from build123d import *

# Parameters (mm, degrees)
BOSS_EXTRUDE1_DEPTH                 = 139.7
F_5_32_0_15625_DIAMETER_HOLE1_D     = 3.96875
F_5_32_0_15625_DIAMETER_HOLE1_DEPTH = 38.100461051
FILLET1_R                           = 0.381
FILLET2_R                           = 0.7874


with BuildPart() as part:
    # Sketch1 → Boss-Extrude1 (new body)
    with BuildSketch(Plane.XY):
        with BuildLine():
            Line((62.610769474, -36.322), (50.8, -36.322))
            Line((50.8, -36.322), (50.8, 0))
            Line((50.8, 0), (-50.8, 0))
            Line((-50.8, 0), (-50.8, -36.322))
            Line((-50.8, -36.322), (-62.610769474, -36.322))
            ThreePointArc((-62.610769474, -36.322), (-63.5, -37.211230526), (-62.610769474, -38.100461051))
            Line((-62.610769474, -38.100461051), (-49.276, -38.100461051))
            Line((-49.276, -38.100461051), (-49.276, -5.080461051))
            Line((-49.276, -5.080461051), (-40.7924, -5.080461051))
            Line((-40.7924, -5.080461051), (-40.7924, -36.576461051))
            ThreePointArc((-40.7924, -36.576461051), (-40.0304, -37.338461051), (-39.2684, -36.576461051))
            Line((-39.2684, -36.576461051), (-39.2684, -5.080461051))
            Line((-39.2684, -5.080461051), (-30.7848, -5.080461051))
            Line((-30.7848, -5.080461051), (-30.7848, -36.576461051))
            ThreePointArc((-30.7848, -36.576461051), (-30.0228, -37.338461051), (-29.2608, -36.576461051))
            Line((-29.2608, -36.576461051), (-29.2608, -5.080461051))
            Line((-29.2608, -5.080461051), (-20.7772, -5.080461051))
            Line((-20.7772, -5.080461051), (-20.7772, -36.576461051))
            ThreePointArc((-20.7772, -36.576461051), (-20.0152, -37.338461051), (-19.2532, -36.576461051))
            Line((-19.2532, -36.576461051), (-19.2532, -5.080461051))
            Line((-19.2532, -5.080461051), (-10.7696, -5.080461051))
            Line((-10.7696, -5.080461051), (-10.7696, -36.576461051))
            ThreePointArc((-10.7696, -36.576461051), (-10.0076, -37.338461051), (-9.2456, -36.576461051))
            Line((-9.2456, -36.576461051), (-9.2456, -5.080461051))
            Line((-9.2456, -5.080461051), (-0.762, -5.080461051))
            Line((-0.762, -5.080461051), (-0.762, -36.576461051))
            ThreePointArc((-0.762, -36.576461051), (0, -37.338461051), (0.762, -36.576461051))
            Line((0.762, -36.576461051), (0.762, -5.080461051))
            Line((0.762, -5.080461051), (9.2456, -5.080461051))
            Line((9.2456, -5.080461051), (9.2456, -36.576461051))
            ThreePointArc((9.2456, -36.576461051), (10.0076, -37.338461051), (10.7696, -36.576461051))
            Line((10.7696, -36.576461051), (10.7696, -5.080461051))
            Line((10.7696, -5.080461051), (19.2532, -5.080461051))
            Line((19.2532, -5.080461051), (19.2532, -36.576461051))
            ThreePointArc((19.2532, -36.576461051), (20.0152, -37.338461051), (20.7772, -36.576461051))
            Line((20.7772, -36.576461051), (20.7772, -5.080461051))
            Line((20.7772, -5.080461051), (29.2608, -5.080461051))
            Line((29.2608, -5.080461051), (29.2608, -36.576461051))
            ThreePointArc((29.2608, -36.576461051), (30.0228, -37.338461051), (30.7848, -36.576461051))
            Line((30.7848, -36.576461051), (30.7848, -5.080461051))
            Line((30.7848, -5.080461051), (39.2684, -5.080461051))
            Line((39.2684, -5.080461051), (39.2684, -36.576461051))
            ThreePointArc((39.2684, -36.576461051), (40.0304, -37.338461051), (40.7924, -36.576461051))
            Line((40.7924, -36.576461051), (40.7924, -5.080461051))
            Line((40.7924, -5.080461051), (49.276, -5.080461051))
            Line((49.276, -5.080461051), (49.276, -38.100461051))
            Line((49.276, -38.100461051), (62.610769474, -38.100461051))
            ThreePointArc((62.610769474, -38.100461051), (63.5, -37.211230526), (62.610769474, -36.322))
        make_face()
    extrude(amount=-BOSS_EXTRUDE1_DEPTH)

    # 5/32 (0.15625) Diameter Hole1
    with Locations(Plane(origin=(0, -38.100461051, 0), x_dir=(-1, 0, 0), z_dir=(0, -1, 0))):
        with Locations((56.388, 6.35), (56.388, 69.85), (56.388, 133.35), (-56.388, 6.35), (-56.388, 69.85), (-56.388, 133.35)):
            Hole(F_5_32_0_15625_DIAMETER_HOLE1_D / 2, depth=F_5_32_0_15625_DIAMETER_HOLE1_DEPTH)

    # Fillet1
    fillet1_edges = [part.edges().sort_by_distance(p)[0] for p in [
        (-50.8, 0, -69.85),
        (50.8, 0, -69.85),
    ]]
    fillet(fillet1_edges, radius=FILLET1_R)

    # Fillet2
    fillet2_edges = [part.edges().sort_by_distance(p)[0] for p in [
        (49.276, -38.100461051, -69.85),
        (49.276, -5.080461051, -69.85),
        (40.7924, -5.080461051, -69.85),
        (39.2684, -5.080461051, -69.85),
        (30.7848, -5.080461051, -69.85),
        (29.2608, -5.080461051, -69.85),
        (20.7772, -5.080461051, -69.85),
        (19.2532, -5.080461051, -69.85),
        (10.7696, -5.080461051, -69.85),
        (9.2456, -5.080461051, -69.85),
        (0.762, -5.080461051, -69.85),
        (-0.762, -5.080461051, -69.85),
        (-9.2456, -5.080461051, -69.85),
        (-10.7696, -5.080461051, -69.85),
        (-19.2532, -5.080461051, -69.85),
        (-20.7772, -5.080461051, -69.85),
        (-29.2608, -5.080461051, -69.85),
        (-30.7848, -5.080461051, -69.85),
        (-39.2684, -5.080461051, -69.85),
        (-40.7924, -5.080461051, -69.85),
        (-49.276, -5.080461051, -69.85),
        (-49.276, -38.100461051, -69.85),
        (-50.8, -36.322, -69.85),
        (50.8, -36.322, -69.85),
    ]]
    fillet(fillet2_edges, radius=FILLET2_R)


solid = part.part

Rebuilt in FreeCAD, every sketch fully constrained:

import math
import FreeCAD as App
import Part
import Sketcher
from FreeCAD import Vector
Q = App.Units.Quantity


def edges_at(feature, points):
    """Names of the edges that pass closest to the given points."""
    edges = feature.Shape.Edges
    near = lambda p: min(range(len(edges)), key=lambda i: edges[i].distToShape(Part.Vertex(*p))[0])
    return sorted({f"Edge{near(p) + 1}" for p in points})

doc = App.newDocument("Part")
params = doc.addObject("Spreadsheet::Sheet", "Params")
for row, (alias, value) in enumerate([
    ("sketch1_width", "4 in"),
    ("sketch1_radius", "0.03 in"),
    ("sketch1_height", "1.3 in"),
    ("sketch1_height2", "1.43 in"),
    ("sketch1_height3", "1.24 in"),
    ("pad1_length", "5.5 in"),
    ("sketch2_diameter", "0.15625 in"),
    ("hole_diameter", "0.15625 in"),
    ("hole_depth", "38.100461 mm"),
    ("fillet_radius", "0.015 in"),
    ("fillet2_radius", "0.031 in"),
], start=1):
    params.set(f"A{row}", alias)
    params.set(f"B{row}", "=" + value)
    params.setAlias(f"B{row}", alias)

body = doc.addObject("PartDesign::Body", "Body")

sketch1 = doc.addObject("Sketcher::SketchObject", "Sketch")
body.addObject(sketch1)
sketch1.AttachmentSupport = (doc.XY_Plane, [""])
sketch1.MapMode = "FlatFace"
sketch1.addGeometry([
    Part.LineSegment(Vector(62.6, -36.3, 0), Vector(50.8, -36.3, 0)),
    Part.LineSegment(Vector(50.8, -36.3, 0), Vector(50.8, 0, 0)),
    Part.LineSegment(Vector(50.8, 0, 0), Vector(-50.8, 0, 0)),
    Part.LineSegment(Vector(-50.8, 0, 0), Vector(-50.8, -36.3, 0)),
    Part.LineSegment(Vector(-50.8, -36.3, 0), Vector(-62.6, -36.3, 0)),
    Part.ArcOfCircle(Part.Circle(Vector(-62.6, -37.2, 0), Vector(0, 0, 1), 0.9), math.radians(90), math.radians(270)),
    Part.LineSegment(Vector(-62.6, -38.1, 0), Vector(-49.3, -38.1, 0)),
    Part.LineSegment(Vector(-49.3, -38.1, 0), Vector(-49.3, -5.1, 0)),
    Part.LineSegment(Vector(-49.3, -5.1, 0), Vector(-40.8, -5.1, 0)),
    Part.LineSegment(Vector(-40.8, -5.1, 0), Vector(-40.8, -36.6, 0)),
    Part.ArcOfCircle(Part.Circle(Vector(-40, -36.6, 0), Vector(0, 0, 1), 0.8), math.radians(180), math.radians(360)),
    Part.LineSegment(Vector(-39.3, -36.6, 0), Vector(-39.3, -5.1, 0)),
    Part.LineSegment(Vector(-39.3, -5.1, 0), Vector(-30.8, -5.1, 0)),
    Part.LineSegment(Vector(-30.8, -5.1, 0), Vector(-30.8, -36.6, 0)),
    Part.ArcOfCircle(Part.Circle(Vector(-30, -36.6, 0), Vector(0, 0, 1), 0.8), math.radians(180), math.radians(360)),
    Part.LineSegment(Vector(-29.3, -36.6, 0), Vector(-29.3, -5.1, 0)),
    Part.LineSegment(Vector(-29.3, -5.1, 0), Vector(-20.8, -5.1, 0)),
    Part.LineSegment(Vector(-20.8, -5.1, 0), Vector(-20.8, -36.6, 0)),
    Part.ArcOfCircle(Part.Circle(Vector(-20, -36.6, 0), Vector(0, 0, 1), 0.8), math.radians(180), math.radians(360)),
    Part.LineSegment(Vector(-19.3, -36.6, 0), Vector(-19.3, -5.1, 0)),
    Part.LineSegment(Vector(-19.3, -5.1, 0), Vector(-10.8, -5.1, 0)),
    Part.LineSegment(Vector(-10.8, -5.1, 0), Vector(-10.8, -36.6, 0)),
    Part.ArcOfCircle(Part.Circle(Vector(-10, -36.6, 0), Vector(0, 0, 1), 0.8), math.radians(180), math.radians(360)),
    Part.LineSegment(Vector(-9.2, -36.6, 0), Vector(-9.2, -5.1, 0)),
    Part.LineSegment(Vector(-9.2, -5.1, 0), Vector(-0.8, -5.1, 0)),
    Part.LineSegment(Vector(-0.8, -5.1, 0), Vector(-0.8, -36.6, 0)),
    Part.ArcOfCircle(Part.Circle(Vector(0, -36.6, 0), Vector(0, 0, 1), 0.8), math.radians(180), math.radians(360)),
    Part.LineSegment(Vector(0.8, -36.6, 0), Vector(0.8, -5.1, 0)),
    Part.LineSegment(Vector(0.8, -5.1, 0), Vector(9.2, -5.1, 0)),
    Part.LineSegment(Vector(9.2, -5.1, 0), Vector(9.2, -36.6, 0)),
    Part.ArcOfCircle(Part.Circle(Vector(10, -36.6, 0), Vector(0, 0, 1), 0.8), math.radians(180), math.radians(360)),
    Part.LineSegment(Vector(10.8, -36.6, 0), Vector(10.8, -5.1, 0)),
    Part.LineSegment(Vector(10.8, -5.1, 0), Vector(19.3, -5.1, 0)),
    Part.LineSegment(Vector(19.3, -5.1, 0), Vector(19.3, -36.6, 0)),
    Part.ArcOfCircle(Part.Circle(Vector(20, -36.6, 0), Vector(0, 0, 1), 0.8), math.radians(180), math.radians(360)),
    Part.LineSegment(Vector(20.8, -36.6, 0), Vector(20.8, -5.1, 0)),
    Part.LineSegment(Vector(20.8, -5.1, 0), Vector(29.3, -5.1, 0)),
    Part.LineSegment(Vector(29.3, -5.1, 0), Vector(29.3, -36.6, 0)),
    Part.ArcOfCircle(Part.Circle(Vector(30, -36.6, 0), Vector(0, 0, 1), 0.8), math.radians(180), math.radians(360)),
    Part.LineSegment(Vector(30.8, -36.6, 0), Vector(30.8, -5.1, 0)),
    Part.LineSegment(Vector(30.8, -5.1, 0), Vector(39.3, -5.1, 0)),
    Part.LineSegment(Vector(39.3, -5.1, 0), Vector(39.3, -36.6, 0)),
    Part.ArcOfCircle(Part.Circle(Vector(40, -36.6, 0), Vector(0, 0, 1), 0.8), math.radians(180), math.radians(360)),
    Part.LineSegment(Vector(40.8, -36.6, 0), Vector(40.8, -5.1, 0)),
    Part.LineSegment(Vector(40.8, -5.1, 0), Vector(49.3, -5.1, 0)),
    Part.LineSegment(Vector(49.3, -5.1, 0), Vector(49.3, -38.1, 0)),
    Part.LineSegment(Vector(49.3, -38.1, 0), Vector(62.6, -38.1, 0)),
    Part.ArcOfCircle(Part.Circle(Vector(62.6, -37.2, 0), Vector(0, 0, 1), 0.9), math.radians(-90), math.radians(90)),
], False)
sketch1.addConstraint([
    Sketcher.Constraint("Coincident", 0, 2, 1, 1),
    Sketcher.Constraint("Coincident", 1, 2, 2, 1),
    Sketcher.Constraint("Coincident", 2, 2, 3, 1),
    Sketcher.Constraint("Coincident", 3, 2, 4, 1),
    Sketcher.Constraint("Tangent", 4, 2, 5, 1),
    Sketcher.Constraint("Tangent", 5, 2, 6, 1),
    Sketcher.Constraint("Coincident", 6, 2, 7, 1),
    Sketcher.Constraint("Coincident", 7, 2, 8, 1),
    Sketcher.Constraint("Coincident", 8, 2, 9, 1),
    Sketcher.Constraint("Tangent", 9, 2, 10, 1),
    Sketcher.Constraint("Tangent", 10, 2, 11, 1),
    Sketcher.Constraint("Coincident", 11, 2, 12, 1),
    Sketcher.Constraint("Coincident", 12, 2, 13, 1),
    Sketcher.Constraint("Tangent", 13, 2, 14, 1),
    Sketcher.Constraint("Tangent", 14, 2, 15, 1),
    Sketcher.Constraint("Coincident", 15, 2, 16, 1),
    Sketcher.Constraint("Coincident", 16, 2, 17, 1),
    Sketcher.Constraint("Tangent", 17, 2, 18, 1),
    Sketcher.Constraint("Tangent", 18, 2, 19, 1),
    Sketcher.Constraint("Coincident", 19, 2, 20, 1),
    Sketcher.Constraint("Coincident", 20, 2, 21, 1),
    Sketcher.Constraint("Tangent", 21, 2, 22, 1),
    Sketcher.Constraint("Tangent", 22, 2, 23, 1),
    Sketcher.Constraint("Coincident", 23, 2, 24, 1),
    Sketcher.Constraint("Coincident", 24, 2, 25, 1),
    Sketcher.Constraint("Tangent", 25, 2, 26, 1),
    Sketcher.Constraint("Tangent", 26, 2, 27, 1),
    Sketcher.Constraint("Coincident", 27, 2, 28, 1),
    Sketcher.Constraint("Coincident", 28, 2, 29, 1),
    Sketcher.Constraint("Tangent", 29, 2, 30, 1),
    Sketcher.Constraint("Tangent", 30, 2, 31, 1),
    Sketcher.Constraint("Coincident", 31, 2, 32, 1),
    Sketcher.Constraint("Coincident", 32, 2, 33, 1),
    Sketcher.Constraint("Tangent", 33, 2, 34, 1),
    Sketcher.Constraint("Tangent", 34, 2, 35, 1),
    Sketcher.Constraint("Coincident", 35, 2, 36, 1),
    Sketcher.Constraint("Coincident", 36, 2, 37, 1),
    Sketcher.Constraint("Tangent", 37, 2, 38, 1),
    Sketcher.Constraint("Tangent", 38, 2, 39, 1),
    Sketcher.Constraint("Coincident", 39, 2, 40, 1),
    Sketcher.Constraint("Coincident", 40, 2, 41, 1),
    Sketcher.Constraint("Tangent", 41, 2, 42, 1),
    Sketcher.Constraint("Tangent", 42, 2, 43, 1),
    Sketcher.Constraint("Coincident", 43, 2, 44, 1),
    Sketcher.Constraint("Coincident", 44, 2, 45, 1),
    Sketcher.Constraint("Coincident", 45, 2, 46, 1),
    Sketcher.Constraint("Tangent", 46, 2, 47, 1),
    Sketcher.Constraint("Tangent", 47, 2, 0, 1),
    Sketcher.Constraint("Horizontal", 0),
    Sketcher.Constraint("Vertical", 1),
    Sketcher.Constraint("Horizontal", 2),
    Sketcher.Constraint("Vertical", 3),
    Sketcher.Constraint("Horizontal", 4),
    Sketcher.Constraint("Horizontal", 6),
    Sketcher.Constraint("Vertical", 7),
    Sketcher.Constraint("Horizontal", 8),
    Sketcher.Constraint("Vertical", 9),
    Sketcher.Constraint("Vertical", 11),
    Sketcher.Constraint("Horizontal", 12),
    Sketcher.Constraint("Vertical", 13),
    Sketcher.Constraint("Vertical", 15),
    Sketcher.Constraint("Horizontal", 16),
    Sketcher.Constraint("Vertical", 17),
    Sketcher.Constraint("Vertical", 19),
    Sketcher.Constraint("Horizontal", 20),
    Sketcher.Constraint("Vertical", 21),
    Sketcher.Constraint("Vertical", 23),
    Sketcher.Constraint("Horizontal", 24),
    Sketcher.Constraint("Vertical", 25),
    Sketcher.Constraint("Vertical", 27),
    Sketcher.Constraint("Horizontal", 28),
    Sketcher.Constraint("Vertical", 29),
    Sketcher.Constraint("Vertical", 31),
    Sketcher.Constraint("Horizontal", 32),
    Sketcher.Constraint("Vertical", 33),
    Sketcher.Constraint("Vertical", 35),
    Sketcher.Constraint("Horizontal", 36),
    Sketcher.Constraint("Vertical", 37),
    Sketcher.Constraint("Vertical", 39),
    Sketcher.Constraint("Horizontal", 40),
    Sketcher.Constraint("Vertical", 41),
    Sketcher.Constraint("Vertical", 43),
    Sketcher.Constraint("Horizontal", 44),
    Sketcher.Constraint("Vertical", 45),
    Sketcher.Constraint("Horizontal", 46),
    Sketcher.Constraint("Equal", 10, 14),
    Sketcher.Constraint("Equal", 14, 18),
    Sketcher.Constraint("Equal", 18, 22),
    Sketcher.Constraint("Equal", 22, 26),
    Sketcher.Constraint("Equal", 26, 30),
    Sketcher.Constraint("Equal", 30, 34),
    Sketcher.Constraint("Equal", 34, 38),
    Sketcher.Constraint("Equal", 38, 42),
    Sketcher.Constraint("Equal", 5, 47),
    Sketcher.Constraint("Symmetric", 1, 2, 2, 2, -1, 1),
    Sketcher.Constraint("Symmetric", 22, 3, 30, 3, -2),
    Sketcher.Constraint("Symmetric", 18, 3, 34, 3, -2),
    Sketcher.Constraint("Symmetric", 14, 3, 38, 3, -2),
    Sketcher.Constraint("Symmetric", 10, 3, 42, 3, -2),
    Sketcher.Constraint("Symmetric", 5, 3, 47, 3, -2),
    Sketcher.Constraint("Symmetric", 24, 2, 27, 2, -2),
    Sketcher.Constraint("Symmetric", 7, 2, 44, 2, -2),
    Sketcher.Constraint("Horizontal", 10, 3, 14, 3),
    Sketcher.Constraint("Horizontal", 14, 3, 18, 3),
    Sketcher.Constraint("Horizontal", 18, 3, 22, 3),
    Sketcher.Constraint("Horizontal", 22, 3, 26, 3),
    Sketcher.Constraint("Horizontal", 8, 2, 11, 2),
    Sketcher.Constraint("Horizontal", 12, 2, 15, 2),
    Sketcher.Constraint("Horizontal", 16, 2, 19, 2),
    Sketcher.Constraint("Horizontal", 20, 2, 23, 2),
    Sketcher.Constraint("Horizontal", 28, 2, 31, 2),
    Sketcher.Constraint("Horizontal", 32, 2, 35, 2),
    Sketcher.Constraint("Horizontal", 36, 2, 39, 2),
    Sketcher.Constraint("Equal", 8, 12),
    Sketcher.Constraint("Equal", 12, 16),
    Sketcher.Constraint("Equal", 16, 20),
    Sketcher.Constraint("Equal", 20, 24),
    Sketcher.Constraint("DistanceX", 2, 2, 2, 1, Q("4 in")),
    Sketcher.Constraint("Radius", 10, Q("0.03 in")),
    Sketcher.Constraint("DistanceY", 7, 1, 7, 2, Q("1.3 in")),
    Sketcher.Constraint("DistanceY", 1, 1, 1, 2, Q("1.43 in")),
    Sketcher.Constraint("DistanceY", 9, 2, 9, 1, Q("1.24 in")),
    Sketcher.Constraint("DistanceX", 8, 1, 8, 2, Q("0.334 in")),
    Sketcher.Constraint("Radius", 5, 0.889231),
    Sketcher.Constraint("DistanceX", 0, 2, 0, 1, 11.810769),
])
sketch1.setExpression("Constraints[117]", "Params.sketch1_width")
sketch1.setExpression("Constraints[118]", "Params.sketch1_radius")
sketch1.setExpression("Constraints[119]", "Params.sketch1_height")
sketch1.setExpression("Constraints[120]", "Params.sketch1_height2")
sketch1.setExpression("Constraints[121]", "Params.sketch1_height3")
pad1 = doc.addObject("PartDesign::Pad", "Pad")
body.addObject(pad1)
pad1.Profile = sketch1
pad1.setExpression("Length", "Params.pad1_length")
pad1.Reversed = True

sketch2 = doc.addObject("Sketcher::SketchObject", "Sketch001")
body.addObject(sketch2)
sketch2.AttachmentSupport = (doc.XZ_Plane, [""])
sketch2.MapMode = "FlatFace"
sketch2.AttachmentOffset = App.Placement(Vector(0, 0, 38.100461), App.Rotation())
sketch2.addGeometry([
    Part.Circle(Vector(-56.4, -6.3, 0), Vector(0, 0, 1), 2),
    Part.Circle(Vector(-56.4, -69.8, 0), Vector(0, 0, 1), 2),
    Part.Circle(Vector(-56.4, -133.3, 0), Vector(0, 0, 1), 2),
    Part.Circle(Vector(56.4, -6.3, 0), Vector(0, 0, 1), 2),
    Part.Circle(Vector(56.4, -69.8, 0), Vector(0, 0, 1), 2),
    Part.Circle(Vector(56.4, -133.3, 0), Vector(0, 0, 1), 2),
], False)
sketch2.addConstraint([
    Sketcher.Constraint("Equal", 0, 1),
    Sketcher.Constraint("Equal", 1, 2),
    Sketcher.Constraint("Equal", 2, 3),
    Sketcher.Constraint("Equal", 3, 4),
    Sketcher.Constraint("Equal", 4, 5),
    Sketcher.Constraint("Symmetric", 0, 3, 3, 3, -2),
    Sketcher.Constraint("Symmetric", 1, 3, 4, 3, -2),
    Sketcher.Constraint("Symmetric", 2, 3, 5, 3, -2),
    Sketcher.Constraint("Vertical", 0, 3, 1, 3),
    Sketcher.Constraint("Vertical", 1, 3, 2, 3),
    Sketcher.Constraint("Diameter", 0, Q("0.15625 in")),
    Sketcher.Constraint("DistanceY", 2, 3, 0, 3, Q("5 in")),
    Sketcher.Constraint("DistanceY", 1, 3, 0, 3, Q("2.5 in")),
    Sketcher.Constraint("DistanceX", 0, 3, -1, 1, Q("2.22 in")),
    Sketcher.Constraint("DistanceY", 0, 3, -1, 1, Q("0.25 in")),
])
sketch2.setExpression("Constraints[10]", "Params.sketch2_diameter")
doc.recompute()
hole = doc.addObject("PartDesign::Hole", "Hole")
body.addObject(hole)
hole.Profile = sketch2
hole.ThreadType = "None"
hole.setExpression("Diameter", "Params.hole_diameter")
hole.DepthType = "Dimension"
hole.setExpression("Depth", "Params.hole_depth")
hole.DrillPoint = "Flat"
doc.recompute()

fillet = doc.addObject("PartDesign::Fillet", "Fillet")
body.addObject(fillet)
fillet.Base = (hole, edges_at(hole, [(-50.8, 0, -69.85), (50.8, 0, -69.85)]))
fillet.setExpression("Radius", "Params.fillet_radius")
doc.recompute()

fillet2 = doc.addObject("PartDesign::Fillet", "Fillet001")
body.addObject(fillet2)
fillet2.Base = (fillet, edges_at(fillet, [
    (49.276, -38.1, -69.85),
    (49.276, -5.08, -69.85),
    (40.792, -5.08, -69.85),
    (39.268, -5.08, -69.85),
    (30.785, -5.08, -69.85),
    (29.261, -5.08, -69.85),
    (20.777, -5.08, -69.85),
    (19.253, -5.08, -69.85),
    (10.77, -5.08, -69.85),
    (9.246, -5.08, -69.85),
    (0.762, -5.08, -69.85),
    (-0.762, -5.08, -69.85),
    (-9.246, -5.08, -69.85),
    (-10.77, -5.08, -69.85),
    (-19.253, -5.08, -69.85),
    (-20.777, -5.08, -69.85),
    (-29.261, -5.08, -69.85),
    (-30.785, -5.08, -69.85),
    (-39.268, -5.08, -69.85),
    (-40.792, -5.08, -69.85),
    (-49.276, -5.08, -69.85),
    (-49.276, -38.1, -69.85),
    (-50.8, -36.322, -69.85),
    (50.8, -36.322, -69.85),
]))
fillet2.setExpression("Radius", "Params.fillet2_radius")

doc.recompute()
